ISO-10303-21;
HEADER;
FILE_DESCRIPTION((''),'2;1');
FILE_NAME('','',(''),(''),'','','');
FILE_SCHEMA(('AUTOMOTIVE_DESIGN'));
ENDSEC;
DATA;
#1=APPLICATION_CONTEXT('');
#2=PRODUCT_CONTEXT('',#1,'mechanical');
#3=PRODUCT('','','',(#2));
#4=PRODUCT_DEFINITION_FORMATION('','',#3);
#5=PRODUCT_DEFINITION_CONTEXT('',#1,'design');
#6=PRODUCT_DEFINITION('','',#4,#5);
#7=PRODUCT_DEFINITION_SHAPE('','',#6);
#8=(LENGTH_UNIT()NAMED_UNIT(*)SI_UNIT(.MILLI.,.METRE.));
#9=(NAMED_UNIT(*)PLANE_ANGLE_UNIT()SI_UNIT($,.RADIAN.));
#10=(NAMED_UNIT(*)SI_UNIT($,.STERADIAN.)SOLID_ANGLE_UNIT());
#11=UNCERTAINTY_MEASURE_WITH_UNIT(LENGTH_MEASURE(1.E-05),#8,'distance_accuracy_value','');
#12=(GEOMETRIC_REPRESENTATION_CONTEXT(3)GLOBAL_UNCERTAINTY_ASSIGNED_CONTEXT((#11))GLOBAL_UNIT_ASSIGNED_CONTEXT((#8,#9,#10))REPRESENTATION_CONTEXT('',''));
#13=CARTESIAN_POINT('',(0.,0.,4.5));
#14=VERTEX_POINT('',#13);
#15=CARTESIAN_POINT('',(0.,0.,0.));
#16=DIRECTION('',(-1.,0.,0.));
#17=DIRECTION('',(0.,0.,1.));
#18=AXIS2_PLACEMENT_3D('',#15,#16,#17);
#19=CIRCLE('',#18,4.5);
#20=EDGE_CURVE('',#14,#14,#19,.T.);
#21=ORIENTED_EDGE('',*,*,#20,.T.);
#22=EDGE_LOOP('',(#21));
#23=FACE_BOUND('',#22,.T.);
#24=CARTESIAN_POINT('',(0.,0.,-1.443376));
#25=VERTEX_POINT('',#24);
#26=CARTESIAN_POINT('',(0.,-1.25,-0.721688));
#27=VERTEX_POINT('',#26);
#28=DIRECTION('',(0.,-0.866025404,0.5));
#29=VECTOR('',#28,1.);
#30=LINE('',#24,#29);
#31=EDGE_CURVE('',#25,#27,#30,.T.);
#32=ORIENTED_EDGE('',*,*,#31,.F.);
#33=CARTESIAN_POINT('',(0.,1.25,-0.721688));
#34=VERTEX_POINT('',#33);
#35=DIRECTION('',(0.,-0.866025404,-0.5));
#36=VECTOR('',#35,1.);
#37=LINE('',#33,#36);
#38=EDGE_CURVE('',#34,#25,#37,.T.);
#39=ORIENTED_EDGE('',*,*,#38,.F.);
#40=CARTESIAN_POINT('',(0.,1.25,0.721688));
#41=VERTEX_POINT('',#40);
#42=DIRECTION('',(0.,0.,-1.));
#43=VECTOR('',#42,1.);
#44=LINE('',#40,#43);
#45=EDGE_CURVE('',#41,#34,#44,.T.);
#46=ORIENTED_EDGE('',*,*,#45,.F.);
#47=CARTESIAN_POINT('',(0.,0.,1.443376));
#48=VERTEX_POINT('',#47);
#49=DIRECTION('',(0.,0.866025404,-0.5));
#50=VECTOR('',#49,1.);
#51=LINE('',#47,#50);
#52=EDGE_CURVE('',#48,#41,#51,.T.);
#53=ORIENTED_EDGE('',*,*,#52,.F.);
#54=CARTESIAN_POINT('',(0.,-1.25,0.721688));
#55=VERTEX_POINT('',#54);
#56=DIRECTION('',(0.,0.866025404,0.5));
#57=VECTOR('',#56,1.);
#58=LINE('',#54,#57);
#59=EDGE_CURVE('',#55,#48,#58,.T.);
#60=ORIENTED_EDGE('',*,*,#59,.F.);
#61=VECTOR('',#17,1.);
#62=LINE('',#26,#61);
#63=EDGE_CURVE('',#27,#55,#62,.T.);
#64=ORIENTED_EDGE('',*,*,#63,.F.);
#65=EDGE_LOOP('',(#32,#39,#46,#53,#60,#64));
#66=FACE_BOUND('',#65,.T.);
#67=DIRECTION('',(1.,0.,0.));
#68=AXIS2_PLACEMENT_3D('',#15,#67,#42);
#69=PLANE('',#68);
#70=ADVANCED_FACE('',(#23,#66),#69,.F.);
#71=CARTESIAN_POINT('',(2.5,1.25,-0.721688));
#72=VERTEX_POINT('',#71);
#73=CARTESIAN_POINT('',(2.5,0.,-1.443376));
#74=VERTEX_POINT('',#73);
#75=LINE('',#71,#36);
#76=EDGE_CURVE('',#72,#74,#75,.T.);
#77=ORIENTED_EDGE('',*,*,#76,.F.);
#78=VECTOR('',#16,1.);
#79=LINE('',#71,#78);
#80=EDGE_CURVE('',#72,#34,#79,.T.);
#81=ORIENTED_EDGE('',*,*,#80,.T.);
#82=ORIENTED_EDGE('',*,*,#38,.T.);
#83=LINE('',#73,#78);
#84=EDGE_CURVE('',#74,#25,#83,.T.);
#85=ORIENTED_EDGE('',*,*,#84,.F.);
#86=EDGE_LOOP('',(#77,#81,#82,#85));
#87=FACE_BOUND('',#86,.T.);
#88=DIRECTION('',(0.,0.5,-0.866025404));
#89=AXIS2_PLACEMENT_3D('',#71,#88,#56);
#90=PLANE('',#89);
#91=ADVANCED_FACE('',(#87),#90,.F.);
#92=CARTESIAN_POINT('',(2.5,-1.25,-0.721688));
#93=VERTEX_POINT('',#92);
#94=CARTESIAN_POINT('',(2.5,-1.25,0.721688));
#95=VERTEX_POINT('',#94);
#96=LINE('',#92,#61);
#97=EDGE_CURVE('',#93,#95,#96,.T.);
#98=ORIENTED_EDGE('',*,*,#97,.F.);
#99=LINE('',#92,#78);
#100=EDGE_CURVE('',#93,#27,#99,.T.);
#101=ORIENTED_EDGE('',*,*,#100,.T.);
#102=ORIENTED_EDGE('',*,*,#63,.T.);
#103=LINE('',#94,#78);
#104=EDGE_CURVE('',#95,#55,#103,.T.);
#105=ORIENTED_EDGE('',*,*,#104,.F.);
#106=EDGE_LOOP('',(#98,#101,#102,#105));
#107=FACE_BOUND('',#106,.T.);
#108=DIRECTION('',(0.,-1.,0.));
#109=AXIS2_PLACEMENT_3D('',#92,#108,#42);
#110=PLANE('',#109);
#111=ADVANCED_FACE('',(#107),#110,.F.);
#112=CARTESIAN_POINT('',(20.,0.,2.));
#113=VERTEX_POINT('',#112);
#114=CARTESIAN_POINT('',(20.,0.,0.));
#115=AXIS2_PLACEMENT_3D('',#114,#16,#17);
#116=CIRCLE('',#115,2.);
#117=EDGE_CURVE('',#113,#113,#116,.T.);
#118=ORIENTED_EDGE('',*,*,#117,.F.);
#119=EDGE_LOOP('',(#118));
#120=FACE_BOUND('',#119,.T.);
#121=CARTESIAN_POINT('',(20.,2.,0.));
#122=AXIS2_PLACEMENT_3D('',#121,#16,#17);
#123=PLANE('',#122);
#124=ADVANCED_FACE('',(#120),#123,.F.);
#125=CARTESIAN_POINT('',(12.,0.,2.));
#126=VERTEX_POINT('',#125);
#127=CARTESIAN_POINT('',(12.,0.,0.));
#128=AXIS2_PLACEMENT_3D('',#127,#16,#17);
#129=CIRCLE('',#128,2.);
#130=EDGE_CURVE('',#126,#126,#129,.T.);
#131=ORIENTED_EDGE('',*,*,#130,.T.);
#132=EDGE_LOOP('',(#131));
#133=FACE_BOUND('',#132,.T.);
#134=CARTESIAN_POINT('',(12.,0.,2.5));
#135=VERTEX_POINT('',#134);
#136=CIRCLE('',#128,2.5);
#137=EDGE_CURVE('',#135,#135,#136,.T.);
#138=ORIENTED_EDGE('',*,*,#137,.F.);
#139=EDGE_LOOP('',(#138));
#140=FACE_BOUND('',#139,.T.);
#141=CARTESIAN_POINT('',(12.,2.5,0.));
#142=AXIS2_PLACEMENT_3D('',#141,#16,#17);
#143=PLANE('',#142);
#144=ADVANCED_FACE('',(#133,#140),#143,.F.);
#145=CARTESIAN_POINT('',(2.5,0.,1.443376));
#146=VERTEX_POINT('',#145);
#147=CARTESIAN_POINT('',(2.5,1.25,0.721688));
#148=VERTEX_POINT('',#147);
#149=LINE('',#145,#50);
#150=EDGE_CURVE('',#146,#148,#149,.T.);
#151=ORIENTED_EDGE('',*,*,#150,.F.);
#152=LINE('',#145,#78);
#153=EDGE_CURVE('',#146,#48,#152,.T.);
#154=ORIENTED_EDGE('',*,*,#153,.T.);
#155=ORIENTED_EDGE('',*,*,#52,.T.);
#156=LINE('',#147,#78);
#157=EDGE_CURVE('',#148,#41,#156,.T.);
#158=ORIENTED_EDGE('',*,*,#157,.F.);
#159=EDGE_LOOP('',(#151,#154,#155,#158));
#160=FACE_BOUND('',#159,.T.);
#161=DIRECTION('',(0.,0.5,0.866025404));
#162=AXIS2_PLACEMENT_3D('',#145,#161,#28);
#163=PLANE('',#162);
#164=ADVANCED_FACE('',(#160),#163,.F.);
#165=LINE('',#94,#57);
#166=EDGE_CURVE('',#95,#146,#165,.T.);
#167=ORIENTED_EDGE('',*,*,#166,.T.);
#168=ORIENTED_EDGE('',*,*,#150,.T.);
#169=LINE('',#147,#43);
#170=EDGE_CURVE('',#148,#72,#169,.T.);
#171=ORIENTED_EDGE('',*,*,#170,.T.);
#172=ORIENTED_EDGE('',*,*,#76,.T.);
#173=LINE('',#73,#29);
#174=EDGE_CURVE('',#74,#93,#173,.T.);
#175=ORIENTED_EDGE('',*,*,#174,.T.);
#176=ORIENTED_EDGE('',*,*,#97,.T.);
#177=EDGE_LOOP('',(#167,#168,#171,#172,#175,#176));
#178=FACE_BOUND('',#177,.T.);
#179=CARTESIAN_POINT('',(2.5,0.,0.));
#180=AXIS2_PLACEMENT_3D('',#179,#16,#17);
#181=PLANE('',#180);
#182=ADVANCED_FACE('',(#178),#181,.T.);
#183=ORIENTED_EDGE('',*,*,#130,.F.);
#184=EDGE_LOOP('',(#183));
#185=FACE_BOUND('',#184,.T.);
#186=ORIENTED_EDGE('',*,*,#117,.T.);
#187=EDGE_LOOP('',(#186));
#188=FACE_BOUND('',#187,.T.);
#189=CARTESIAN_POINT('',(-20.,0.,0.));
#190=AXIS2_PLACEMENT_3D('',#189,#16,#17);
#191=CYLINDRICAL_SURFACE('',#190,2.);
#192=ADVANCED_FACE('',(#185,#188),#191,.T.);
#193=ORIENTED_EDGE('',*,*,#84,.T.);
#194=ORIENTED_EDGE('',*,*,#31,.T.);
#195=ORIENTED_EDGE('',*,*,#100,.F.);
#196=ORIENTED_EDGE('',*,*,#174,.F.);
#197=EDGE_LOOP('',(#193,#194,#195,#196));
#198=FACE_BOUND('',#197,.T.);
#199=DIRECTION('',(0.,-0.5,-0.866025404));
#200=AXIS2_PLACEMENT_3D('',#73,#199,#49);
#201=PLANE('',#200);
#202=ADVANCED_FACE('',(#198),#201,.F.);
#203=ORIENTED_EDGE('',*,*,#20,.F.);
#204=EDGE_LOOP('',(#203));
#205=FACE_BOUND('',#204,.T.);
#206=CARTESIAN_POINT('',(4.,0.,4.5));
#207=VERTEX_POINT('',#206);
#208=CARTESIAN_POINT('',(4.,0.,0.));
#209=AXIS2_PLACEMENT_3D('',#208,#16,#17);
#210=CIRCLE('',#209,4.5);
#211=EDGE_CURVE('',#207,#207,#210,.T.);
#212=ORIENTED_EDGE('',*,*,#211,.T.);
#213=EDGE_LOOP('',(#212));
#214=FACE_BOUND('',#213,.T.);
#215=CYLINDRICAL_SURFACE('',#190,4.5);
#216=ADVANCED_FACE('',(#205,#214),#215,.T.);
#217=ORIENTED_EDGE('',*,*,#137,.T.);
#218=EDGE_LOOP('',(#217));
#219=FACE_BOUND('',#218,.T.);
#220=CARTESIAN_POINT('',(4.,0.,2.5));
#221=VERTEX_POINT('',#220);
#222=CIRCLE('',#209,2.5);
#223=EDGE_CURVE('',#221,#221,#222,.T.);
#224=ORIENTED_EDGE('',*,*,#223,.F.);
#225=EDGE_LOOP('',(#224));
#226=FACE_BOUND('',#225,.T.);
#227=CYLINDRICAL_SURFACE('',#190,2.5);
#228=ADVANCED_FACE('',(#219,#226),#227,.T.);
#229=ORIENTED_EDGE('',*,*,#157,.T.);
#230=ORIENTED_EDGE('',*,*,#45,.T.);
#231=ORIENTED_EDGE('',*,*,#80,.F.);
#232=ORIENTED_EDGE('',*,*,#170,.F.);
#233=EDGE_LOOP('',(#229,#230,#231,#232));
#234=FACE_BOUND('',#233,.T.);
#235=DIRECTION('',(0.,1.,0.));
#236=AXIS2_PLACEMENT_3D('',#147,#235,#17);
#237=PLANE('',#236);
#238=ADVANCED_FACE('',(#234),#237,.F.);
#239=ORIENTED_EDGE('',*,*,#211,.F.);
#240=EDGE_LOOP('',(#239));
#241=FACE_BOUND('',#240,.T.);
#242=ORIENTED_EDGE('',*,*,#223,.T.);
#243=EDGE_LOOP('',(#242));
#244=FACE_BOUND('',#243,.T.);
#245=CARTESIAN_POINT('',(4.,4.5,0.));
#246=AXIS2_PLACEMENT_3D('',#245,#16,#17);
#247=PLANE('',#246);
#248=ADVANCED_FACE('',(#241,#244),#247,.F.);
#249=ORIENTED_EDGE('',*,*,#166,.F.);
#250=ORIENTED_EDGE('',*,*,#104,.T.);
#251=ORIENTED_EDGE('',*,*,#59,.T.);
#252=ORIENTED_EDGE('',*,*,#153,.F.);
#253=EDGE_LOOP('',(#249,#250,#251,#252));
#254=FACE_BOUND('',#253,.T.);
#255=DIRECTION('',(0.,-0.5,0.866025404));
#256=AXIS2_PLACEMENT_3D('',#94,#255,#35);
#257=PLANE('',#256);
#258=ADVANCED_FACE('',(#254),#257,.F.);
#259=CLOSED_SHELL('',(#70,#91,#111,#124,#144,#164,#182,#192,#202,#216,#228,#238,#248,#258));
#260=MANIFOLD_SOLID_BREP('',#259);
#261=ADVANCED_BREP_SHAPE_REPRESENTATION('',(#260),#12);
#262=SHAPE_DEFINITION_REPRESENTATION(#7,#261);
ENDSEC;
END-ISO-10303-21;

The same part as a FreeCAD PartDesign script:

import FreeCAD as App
import Part
import Sketcher

V = App.Vector
Q = App.Units.Quantity


def add_polygon(sketch, points):
    """Adds a closed chain of lines whose ends are joined by coincident constraints."""
    first, n = sketch.GeometryCount, len(points)
    for a, b in zip(points, points[1:] + points[:1]):
        sketch.addGeometry(Part.LineSegment(App.Vector(*a, 0), App.Vector(*b, 0)), False)
    for i in range(n):
        sketch.addConstraint(Sketcher.Constraint("Coincident", first + i, 2, first + (i + 1) % n, 1))

doc = App.newDocument("Part")
body = doc.addObject("PartDesign::Body", "Body")

# Sketch on XY plane
sketch1 = body.newObject("Sketcher::SketchObject", "Sketch")
sketch1.AttachmentSupport = (doc.getObject("XY_Plane"), [""])
sketch1.MapMode = "FlatFace"
add_polygon(sketch1, [(4, 4.5), (0, 4.5), (0, 0), (20, 0), (20, 2), (12, 2), (12, 2.5), (4, 2.5)])  # lines 0-7
sketch1.addConstraint(Sketcher.Constraint("Horizontal", 0))
sketch1.addConstraint(Sketcher.Constraint("Vertical", 1))
sketch1.addConstraint(Sketcher.Constraint("Horizontal", 2))
sketch1.addConstraint(Sketcher.Constraint("Vertical", 3))
sketch1.addConstraint(Sketcher.Constraint("Horizontal", 4))
sketch1.addConstraint(Sketcher.Constraint("Vertical", 5))
sketch1.addConstraint(Sketcher.Constraint("Horizontal", 6))
sketch1.addConstraint(Sketcher.Constraint("Vertical", 7))
sketch1.addConstraint(Sketcher.Constraint("Coincident", 1, 2, -1, 1))
sketch1.addConstraint(Sketcher.Constraint("Equal", 4, 6))
sketch1.addConstraint(Sketcher.Constraint("Equal", 3, 7))
sketch1.addConstraint(Sketcher.Constraint("DistanceX", 0, 2, 0, 1, 4.0))
sketch1.addConstraint(Sketcher.Constraint("DistanceX", 2, 1, 2, 2, 20.0))
sketch1.addConstraint(Sketcher.Constraint("DistanceY", 3, 1, 3, 2, 2.0))
sketch1.addConstraint(Sketcher.Constraint("DistanceY", 1, 2, 1, 1, 4.5))
revolution = body.newObject("PartDesign::Revolution", "Revolution")
revolution.Profile = sketch1
revolution.ReferenceAxis = (sketch1, ["H_Axis"])
revolution.Angle = 360

# Sketch on YZ plane
sketch2 = body.newObject("Sketcher::SketchObject", "Sketch001")
sketch2.AttachmentSupport = (doc.getObject("YZ_Plane"), [""])
sketch2.MapMode = "FlatFace"
add_polygon(sketch2, [(0, 1.4), (1.2, 0.7), (1.2, -0.7), (0, -1.4), (-1.2, -0.7), (-1.2, 0.7)])  # lines 0-5
sketch2.addConstraint(Sketcher.Constraint("Vertical", 1))
sketch2.addConstraint(Sketcher.Constraint("Vertical", 4))
sketch2.addConstraint(Sketcher.Constraint("Symmetric", 0, 2, 3, 2, -1, 1))
sketch2.addConstraint(Sketcher.Constraint("Symmetric", 2, 2, 5, 2, -1, 1))
sketch2.addConstraint(Sketcher.Constraint("PointOnObject", 2, 2, -2))
sketch2.addConstraint(Sketcher.Constraint("Parallel", 2, 5))
sketch2.addConstraint(Sketcher.Constraint("Horizontal", 1, 2, 3, 2))
sketch2.addConstraint(Sketcher.Constraint("Angle", 0, Q("-30 deg")))
sketch2.addConstraint(Sketcher.Constraint("DistanceX", 3, 2, 1, 2, 2.5))
sketch2.addConstraint(Sketcher.Constraint("DistanceY", 1, 2, 1, 1, 1.443376))
pocket1 = body.newObject("PartDesign::Pocket", "Pocket")
pocket1.Profile = sketch2
pocket1.Length = 2.5
pocket1.Reversed = True

doc.recompute()
